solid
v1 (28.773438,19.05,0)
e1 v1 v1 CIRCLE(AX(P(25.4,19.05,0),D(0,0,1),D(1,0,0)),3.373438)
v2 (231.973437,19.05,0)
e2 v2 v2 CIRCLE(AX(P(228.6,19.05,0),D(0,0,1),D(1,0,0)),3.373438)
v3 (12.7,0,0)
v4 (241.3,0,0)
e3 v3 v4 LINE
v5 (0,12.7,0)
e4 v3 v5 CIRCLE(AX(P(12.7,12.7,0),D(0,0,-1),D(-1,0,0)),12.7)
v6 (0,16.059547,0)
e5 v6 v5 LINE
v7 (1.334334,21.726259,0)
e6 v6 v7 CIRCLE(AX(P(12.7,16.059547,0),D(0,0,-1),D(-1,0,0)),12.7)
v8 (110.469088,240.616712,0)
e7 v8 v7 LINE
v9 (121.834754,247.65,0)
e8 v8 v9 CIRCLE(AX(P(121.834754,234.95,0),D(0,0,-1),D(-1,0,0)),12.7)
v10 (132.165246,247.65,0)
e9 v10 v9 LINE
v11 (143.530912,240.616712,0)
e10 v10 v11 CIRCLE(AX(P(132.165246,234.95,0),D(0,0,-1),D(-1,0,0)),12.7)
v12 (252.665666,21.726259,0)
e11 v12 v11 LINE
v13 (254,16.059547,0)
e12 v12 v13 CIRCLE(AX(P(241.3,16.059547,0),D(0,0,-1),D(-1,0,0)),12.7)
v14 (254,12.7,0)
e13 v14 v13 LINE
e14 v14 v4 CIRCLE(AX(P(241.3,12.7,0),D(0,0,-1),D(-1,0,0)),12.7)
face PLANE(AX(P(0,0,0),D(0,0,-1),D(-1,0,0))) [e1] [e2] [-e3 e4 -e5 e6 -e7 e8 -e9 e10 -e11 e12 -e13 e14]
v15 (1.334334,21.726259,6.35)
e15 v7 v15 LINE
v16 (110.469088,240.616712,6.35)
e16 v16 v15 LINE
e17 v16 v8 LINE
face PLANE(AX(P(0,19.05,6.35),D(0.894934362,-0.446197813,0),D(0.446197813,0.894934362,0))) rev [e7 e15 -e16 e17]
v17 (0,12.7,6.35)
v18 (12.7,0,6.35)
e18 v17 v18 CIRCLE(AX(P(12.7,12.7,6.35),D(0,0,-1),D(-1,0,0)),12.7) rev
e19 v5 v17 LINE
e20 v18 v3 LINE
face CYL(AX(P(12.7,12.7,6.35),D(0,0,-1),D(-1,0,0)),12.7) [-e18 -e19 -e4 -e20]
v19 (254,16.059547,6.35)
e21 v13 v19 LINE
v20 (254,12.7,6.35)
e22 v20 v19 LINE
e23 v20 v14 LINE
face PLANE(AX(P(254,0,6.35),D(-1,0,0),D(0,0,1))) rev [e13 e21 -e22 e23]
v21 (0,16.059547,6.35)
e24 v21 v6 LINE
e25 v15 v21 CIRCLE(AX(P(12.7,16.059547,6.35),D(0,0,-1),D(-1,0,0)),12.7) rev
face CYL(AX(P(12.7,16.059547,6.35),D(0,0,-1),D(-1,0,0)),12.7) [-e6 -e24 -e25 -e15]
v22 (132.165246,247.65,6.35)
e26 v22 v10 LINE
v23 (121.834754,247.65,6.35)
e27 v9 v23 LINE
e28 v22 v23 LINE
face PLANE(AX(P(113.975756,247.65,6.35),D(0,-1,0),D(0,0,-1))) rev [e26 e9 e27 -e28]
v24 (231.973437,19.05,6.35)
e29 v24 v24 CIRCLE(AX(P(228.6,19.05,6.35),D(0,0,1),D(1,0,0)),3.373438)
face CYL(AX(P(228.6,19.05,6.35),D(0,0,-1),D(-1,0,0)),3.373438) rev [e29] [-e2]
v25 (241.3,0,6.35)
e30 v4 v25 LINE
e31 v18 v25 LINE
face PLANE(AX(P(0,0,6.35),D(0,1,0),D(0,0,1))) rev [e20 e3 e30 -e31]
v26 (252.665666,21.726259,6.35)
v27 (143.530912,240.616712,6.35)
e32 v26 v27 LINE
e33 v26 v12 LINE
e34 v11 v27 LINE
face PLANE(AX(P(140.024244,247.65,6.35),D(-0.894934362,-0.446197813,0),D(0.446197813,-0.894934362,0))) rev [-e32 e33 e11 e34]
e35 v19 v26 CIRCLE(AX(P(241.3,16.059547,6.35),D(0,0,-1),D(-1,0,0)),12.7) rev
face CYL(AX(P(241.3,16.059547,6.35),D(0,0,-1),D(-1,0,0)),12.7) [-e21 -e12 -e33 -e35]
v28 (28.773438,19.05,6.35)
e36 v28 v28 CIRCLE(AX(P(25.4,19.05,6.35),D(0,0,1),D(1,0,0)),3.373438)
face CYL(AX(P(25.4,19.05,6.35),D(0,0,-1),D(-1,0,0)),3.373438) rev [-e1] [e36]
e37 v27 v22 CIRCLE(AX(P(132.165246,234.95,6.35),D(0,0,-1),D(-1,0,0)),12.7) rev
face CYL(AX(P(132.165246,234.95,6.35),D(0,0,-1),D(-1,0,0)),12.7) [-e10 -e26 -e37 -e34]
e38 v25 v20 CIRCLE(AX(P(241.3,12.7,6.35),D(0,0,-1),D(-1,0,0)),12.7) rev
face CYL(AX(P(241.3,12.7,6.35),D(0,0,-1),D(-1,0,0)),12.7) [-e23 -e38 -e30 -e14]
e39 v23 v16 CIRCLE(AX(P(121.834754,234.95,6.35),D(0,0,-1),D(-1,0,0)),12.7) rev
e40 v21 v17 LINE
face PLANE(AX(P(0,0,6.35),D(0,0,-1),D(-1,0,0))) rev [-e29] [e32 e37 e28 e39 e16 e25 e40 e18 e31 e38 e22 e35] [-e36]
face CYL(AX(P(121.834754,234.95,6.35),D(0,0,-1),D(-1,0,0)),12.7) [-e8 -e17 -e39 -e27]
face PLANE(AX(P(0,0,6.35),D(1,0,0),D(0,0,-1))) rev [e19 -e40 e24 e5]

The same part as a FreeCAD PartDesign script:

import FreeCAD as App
import Part
import Sketcher
from FreeCAD import Vector
Q = App.Units.Quantity


def edges_at(feature, points):
    """Names of the edges that pass closest to the given points."""
    edges = feature.Shape.Edges
    near = lambda p: min(range(len(edges)), key=lambda i: edges[i].distToShape(Part.Vertex(*p))[0])
    return sorted({f"Edge{near(p) + 1}" for p in points})

doc = App.newDocument("Part")
params = doc.addObject("Spreadsheet::Sheet", "Params")
for row, (alias, value) in enumerate([
    ("sketch1_width", "10 in"),
    ("sketch1_diameter", "0.265625 in"),
    ("sketch1_height", "0.75 in"),
    ("pad1_length", "0.25 in"),
    ("fillet_radius", "0.5 in"),
], start=1):
    params.set(f"A{row}", alias)
    params.set(f"B{row}", "=" + value)
    params.setAlias(f"B{row}", alias)

body = doc.addObject("PartDesign::Body", "Body")

# Sketch on XY plane
sketch1 = body.newObject("Sketcher::SketchObject", "Sketch")
sketch1.AttachmentSupport = (doc.getObject("XY_Plane"), [""])
sketch1.MapMode = "FlatFace"
sketch1.addGeometry([
    Part.LineSegment(Vector(0, 0, 0), Vector(254, 0, 0)),  # 0
    Part.LineSegment(Vector(254, 0, 0), Vector(254, 19.1, 0)),  # 1
    Part.LineSegment(Vector(254, 19.1, 0), Vector(140, 247.7, 0)),  # 2
    Part.LineSegment(Vector(140, 247.7, 0), Vector(114, 247.7, 0)),  # 3
    Part.LineSegment(Vector(114, 247.7, 0), Vector(0, 19.1, 0)),  # 4
    Part.LineSegment(Vector(0, 19.1, 0), Vector(0, 0, 0)),  # 5
    Part.Circle(Vector(25.4, 19.1, 0), Vector(0, 0, 1), 3.4),  # 6
    Part.Circle(Vector(228.6, 19.1, 0), Vector(0, 0, 1), 3.4),  # 7
], False)
sketch1.addConstraint([
    Sketcher.Constraint("Coincident", 0, 2, 1, 1),
    Sketcher.Constraint("Coincident", 1, 2, 2, 1),
    Sketcher.Constraint("Coincident", 2, 2, 3, 1),
    Sketcher.Constraint("Coincident", 3, 2, 4, 1),
    Sketcher.Constraint("Coincident", 4, 2, 5, 1),
    Sketcher.Constraint("Coincident", 5, 2, 0, 1),
    Sketcher.Constraint("Horizontal", 0),
    Sketcher.Constraint("Vertical", 1),
    Sketcher.Constraint("Horizontal", 3),
    Sketcher.Constraint("Vertical", 5),
    Sketcher.Constraint("Coincident", 5, 2, -1, 1),
    Sketcher.Constraint("Equal", 6, 7),
    Sketcher.Constraint("Horizontal", 6, 3, 7, 3),
    Sketcher.Constraint("Horizontal", 7, 3, 1, 2),
    Sketcher.Constraint("Horizontal", 1, 2, 4, 2),
    Sketcher.Constraint("Equal", 2, 4),
    Sketcher.Constraint("DistanceX", 0, 1, 0, 2, Q("10 in")),
    Sketcher.Constraint("Diameter", 6, Q("0.265625 in")),
    Sketcher.Constraint("DistanceX", -1, 1, 6, 3, Q("1 in")),
    Sketcher.Constraint("DistanceX", -1, 1, 7, 3, Q("9 in")),
    Sketcher.Constraint("DistanceY", 7, 3, 2, 2, Q("9 in")),
    Sketcher.Constraint("DistanceY", 1, 1, 1, 2, Q("0.75 in")),
    Sketcher.Constraint("Angle", 2, Q("116.5 deg")),
])
sketch1.setExpression("Constraints[16]", "Params.sketch1_width")
sketch1.setExpression("Constraints[17]", "Params.sketch1_diameter")
sketch1.setExpression("Constraints[21]", "Params.sketch1_height")
pad1 = body.newObject("PartDesign::Pad", "Pad")
pad1.Profile = sketch1
pad1.setExpression("Length", "Params.pad1_length")
doc.recompute()

fillet = body.newObject("PartDesign::Fillet", "Fillet")
fillet.Base = (pad1, edges_at(pad1, [
    (0, 19.05, 3.175),
    (113.976, 247.65, 3.175),
    (140.024, 247.65, 3.175),
    (254, 19.05, 3.175),
    (254, 0, 3.175),
    (0, 0, 3.175),
]))
fillet.setExpression("Radius", "Params.fillet_radius")

doc.recompute()
